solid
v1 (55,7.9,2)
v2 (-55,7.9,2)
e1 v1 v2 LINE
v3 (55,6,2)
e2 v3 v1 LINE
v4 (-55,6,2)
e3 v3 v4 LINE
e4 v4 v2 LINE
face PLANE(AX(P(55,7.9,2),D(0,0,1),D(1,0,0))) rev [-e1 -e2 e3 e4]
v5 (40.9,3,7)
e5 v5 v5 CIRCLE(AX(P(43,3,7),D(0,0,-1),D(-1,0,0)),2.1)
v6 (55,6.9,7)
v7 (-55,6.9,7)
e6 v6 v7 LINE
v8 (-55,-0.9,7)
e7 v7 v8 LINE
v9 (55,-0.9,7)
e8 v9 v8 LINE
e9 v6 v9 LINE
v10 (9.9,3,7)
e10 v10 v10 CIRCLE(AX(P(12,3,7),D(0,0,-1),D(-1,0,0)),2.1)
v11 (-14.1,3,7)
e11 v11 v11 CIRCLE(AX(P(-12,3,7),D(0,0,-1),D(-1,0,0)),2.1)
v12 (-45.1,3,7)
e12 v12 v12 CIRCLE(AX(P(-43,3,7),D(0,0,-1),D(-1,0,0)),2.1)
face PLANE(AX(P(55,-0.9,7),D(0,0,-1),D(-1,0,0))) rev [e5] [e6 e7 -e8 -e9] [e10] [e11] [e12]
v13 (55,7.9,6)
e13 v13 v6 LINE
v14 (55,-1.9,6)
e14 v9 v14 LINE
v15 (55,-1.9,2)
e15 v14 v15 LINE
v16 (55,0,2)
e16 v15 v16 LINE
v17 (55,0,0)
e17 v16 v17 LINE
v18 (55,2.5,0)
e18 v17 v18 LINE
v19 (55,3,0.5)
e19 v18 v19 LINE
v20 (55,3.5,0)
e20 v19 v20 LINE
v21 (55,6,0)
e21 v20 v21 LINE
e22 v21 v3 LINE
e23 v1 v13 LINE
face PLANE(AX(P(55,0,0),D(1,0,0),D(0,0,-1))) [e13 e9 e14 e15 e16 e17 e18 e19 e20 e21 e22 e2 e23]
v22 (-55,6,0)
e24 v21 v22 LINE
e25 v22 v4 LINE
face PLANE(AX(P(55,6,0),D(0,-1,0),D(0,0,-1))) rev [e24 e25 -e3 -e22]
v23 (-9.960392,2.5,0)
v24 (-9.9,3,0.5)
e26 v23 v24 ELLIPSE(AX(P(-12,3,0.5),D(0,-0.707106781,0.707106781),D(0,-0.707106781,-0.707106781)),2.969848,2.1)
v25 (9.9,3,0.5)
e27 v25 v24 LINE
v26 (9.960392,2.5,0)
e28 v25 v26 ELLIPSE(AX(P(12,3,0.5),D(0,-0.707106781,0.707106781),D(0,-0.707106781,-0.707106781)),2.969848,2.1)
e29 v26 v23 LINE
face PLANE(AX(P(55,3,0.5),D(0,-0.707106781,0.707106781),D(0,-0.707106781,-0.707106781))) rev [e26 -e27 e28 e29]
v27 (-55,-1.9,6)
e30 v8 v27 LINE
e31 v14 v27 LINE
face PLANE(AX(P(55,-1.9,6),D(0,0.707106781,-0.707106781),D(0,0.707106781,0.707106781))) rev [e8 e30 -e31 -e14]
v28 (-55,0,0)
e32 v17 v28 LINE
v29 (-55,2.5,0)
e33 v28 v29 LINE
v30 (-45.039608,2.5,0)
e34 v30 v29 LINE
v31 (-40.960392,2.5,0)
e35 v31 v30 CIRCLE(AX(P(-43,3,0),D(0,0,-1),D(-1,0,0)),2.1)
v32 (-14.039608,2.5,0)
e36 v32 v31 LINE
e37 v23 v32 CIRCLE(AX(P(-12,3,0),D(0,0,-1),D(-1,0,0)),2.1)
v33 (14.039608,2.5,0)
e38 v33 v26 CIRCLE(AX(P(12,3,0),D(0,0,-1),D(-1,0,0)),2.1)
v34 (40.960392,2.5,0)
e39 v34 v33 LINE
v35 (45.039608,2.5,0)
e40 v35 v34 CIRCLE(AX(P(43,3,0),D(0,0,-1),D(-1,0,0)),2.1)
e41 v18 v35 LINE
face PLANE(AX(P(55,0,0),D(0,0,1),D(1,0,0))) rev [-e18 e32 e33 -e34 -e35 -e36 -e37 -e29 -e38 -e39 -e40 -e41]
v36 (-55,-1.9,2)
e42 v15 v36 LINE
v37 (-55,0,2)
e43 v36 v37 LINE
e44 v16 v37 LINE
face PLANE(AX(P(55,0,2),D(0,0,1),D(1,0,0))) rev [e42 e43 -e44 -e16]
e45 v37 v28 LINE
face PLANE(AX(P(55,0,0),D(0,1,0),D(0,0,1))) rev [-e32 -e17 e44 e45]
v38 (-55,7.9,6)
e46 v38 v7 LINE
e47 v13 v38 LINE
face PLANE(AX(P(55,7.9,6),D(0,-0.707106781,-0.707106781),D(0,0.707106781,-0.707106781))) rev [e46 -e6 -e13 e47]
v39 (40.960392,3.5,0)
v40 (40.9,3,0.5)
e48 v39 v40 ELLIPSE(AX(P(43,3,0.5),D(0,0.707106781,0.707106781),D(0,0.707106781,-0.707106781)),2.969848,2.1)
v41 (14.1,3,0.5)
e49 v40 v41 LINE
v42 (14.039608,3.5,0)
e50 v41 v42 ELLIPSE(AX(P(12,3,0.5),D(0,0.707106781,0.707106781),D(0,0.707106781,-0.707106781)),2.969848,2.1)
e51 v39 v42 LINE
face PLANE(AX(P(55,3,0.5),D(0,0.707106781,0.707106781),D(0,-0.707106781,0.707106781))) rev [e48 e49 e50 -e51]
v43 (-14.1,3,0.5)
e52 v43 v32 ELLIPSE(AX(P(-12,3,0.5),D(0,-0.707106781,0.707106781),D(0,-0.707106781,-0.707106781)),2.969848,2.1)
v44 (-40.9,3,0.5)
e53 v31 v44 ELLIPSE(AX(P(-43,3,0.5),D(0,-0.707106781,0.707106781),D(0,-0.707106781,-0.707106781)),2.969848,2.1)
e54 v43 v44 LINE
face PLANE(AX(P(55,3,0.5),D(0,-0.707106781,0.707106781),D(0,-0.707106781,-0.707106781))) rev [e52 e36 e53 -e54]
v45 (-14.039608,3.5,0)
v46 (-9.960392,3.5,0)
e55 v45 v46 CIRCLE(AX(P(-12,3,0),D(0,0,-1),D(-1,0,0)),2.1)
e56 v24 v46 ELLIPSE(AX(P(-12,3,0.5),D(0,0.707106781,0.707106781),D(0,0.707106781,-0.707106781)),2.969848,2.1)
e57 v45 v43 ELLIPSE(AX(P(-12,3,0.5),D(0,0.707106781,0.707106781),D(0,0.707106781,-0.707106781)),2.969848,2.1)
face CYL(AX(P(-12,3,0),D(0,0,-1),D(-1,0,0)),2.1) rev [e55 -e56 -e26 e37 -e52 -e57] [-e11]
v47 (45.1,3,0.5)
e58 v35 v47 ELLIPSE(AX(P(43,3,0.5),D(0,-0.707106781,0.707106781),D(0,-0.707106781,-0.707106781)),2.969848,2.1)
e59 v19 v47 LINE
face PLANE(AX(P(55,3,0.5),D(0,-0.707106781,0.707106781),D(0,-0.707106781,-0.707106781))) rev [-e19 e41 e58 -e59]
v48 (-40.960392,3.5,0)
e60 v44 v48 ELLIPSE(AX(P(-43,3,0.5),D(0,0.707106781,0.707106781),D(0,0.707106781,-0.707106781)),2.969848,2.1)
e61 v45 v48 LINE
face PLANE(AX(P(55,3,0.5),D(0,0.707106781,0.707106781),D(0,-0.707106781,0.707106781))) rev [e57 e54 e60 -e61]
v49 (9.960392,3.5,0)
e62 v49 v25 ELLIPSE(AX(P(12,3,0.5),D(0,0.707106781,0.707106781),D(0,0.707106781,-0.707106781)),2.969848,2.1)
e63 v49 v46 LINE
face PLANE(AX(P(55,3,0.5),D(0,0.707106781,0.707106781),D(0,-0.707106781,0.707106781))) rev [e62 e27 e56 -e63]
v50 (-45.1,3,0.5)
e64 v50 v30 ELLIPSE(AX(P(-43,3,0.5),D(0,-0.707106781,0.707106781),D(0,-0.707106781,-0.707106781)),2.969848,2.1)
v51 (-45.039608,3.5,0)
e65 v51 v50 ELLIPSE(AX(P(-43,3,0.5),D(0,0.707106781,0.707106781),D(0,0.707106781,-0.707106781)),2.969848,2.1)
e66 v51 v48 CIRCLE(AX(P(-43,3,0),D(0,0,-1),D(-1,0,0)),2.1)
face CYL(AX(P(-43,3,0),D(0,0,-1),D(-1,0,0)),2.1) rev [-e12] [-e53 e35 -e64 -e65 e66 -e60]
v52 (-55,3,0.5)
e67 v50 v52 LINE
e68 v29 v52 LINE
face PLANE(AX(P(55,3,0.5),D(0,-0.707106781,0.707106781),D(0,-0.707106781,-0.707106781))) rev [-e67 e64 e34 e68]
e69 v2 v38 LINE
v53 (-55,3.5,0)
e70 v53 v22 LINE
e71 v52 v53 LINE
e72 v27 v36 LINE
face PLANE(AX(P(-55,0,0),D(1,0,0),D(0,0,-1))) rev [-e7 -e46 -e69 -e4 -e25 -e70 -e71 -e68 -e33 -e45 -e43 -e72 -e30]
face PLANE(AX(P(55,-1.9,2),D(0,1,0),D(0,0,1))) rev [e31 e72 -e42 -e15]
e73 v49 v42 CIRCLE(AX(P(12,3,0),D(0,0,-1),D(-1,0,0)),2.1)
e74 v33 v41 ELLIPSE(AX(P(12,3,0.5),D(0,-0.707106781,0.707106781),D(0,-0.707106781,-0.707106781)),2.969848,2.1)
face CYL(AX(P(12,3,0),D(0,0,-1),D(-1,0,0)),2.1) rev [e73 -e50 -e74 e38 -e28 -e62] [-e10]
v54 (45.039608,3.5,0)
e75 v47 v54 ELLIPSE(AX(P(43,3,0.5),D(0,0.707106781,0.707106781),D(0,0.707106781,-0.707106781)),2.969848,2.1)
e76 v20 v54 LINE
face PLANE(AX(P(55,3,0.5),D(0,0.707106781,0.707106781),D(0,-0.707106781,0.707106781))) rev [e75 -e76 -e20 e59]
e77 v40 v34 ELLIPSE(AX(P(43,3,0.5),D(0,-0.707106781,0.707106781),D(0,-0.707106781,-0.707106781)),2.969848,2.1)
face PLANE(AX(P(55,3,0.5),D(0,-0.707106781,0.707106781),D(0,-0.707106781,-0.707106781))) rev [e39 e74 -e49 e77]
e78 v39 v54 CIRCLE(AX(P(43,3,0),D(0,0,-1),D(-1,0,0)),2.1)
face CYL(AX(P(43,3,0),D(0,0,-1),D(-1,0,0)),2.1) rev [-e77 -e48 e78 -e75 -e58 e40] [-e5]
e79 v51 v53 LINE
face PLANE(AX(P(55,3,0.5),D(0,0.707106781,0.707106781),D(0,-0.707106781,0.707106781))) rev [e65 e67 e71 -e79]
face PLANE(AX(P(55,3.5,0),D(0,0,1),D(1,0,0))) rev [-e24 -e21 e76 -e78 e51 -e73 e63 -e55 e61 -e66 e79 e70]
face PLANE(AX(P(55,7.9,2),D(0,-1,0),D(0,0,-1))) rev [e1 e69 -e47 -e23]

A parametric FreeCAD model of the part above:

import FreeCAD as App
import Part
import Sketcher
from FreeCAD import Vector
Q = App.Units.Quantity


def add_polygon(sketch, points):
    """Adds a closed chain of lines whose ends are joined by coincident constraints."""
    first, n = sketch.GeometryCount, len(points)
    for a, b in zip(points, points[1:] + points[:1]):
        sketch.addGeometry(Part.LineSegment(App.Vector(*a, 0), App.Vector(*b, 0)), False)
    for i in range(n):
        sketch.addConstraint(Sketcher.Constraint("Coincident", first + i, 2, first + (i + 1) % n, 1))

doc = App.newDocument("Part")
params = doc.addObject("Spreadsheet::Sheet", "Params")
for row, (alias, value) in enumerate([
    ("sketch1_height", "4 mm"),
    ("sketch1_height2", "2 mm"),
    ("sketch1_width", "7.8 mm"),
    ("sketch1_width2", "1.9 mm"),
    ("sketch1_width3", "2.5 mm"),
    ("pad1_length", "110 mm"),
    ("sketch2_diameter", "4.2 mm"),
    ("hole_diameter", "4.2 mm"),
    ("hole_depth", "52.4 mm"),
], start=1):
    params.set(f"A{row}", alias)
    params.set(f"B{row}", "=" + value)
    params.setAlias(f"B{row}", alias)

body = doc.addObject("PartDesign::Body", "Body")

# Sketch on YZ plane
sketch1 = body.newObject("Sketcher::SketchObject", "Sketch")
sketch1.AttachmentSupport = (doc.getObject("YZ_Plane"), [""])
sketch1.MapMode = "FlatFace"
add_polygon(sketch1, [(6.9, 7), (-0.9, 7), (-1.9, 6), (-1.9, 2), (0, 2), (0, 0), (2.5, 0), (3, 0.5), (3.5, 0), (6, 0), (6, 2), (7.9, 2), (7.9, 6)])  # lines 0-12
sketch1.addConstraint(Sketcher.Constraint("Horizontal", 0))
sketch1.addConstraint(Sketcher.Constraint("Vertical", 2))
sketch1.addConstraint(Sketcher.Constraint("Horizontal", 3))
sketch1.addConstraint(Sketcher.Constraint("Vertical", 4))
sketch1.addConstraint(Sketcher.Constraint("Horizontal", 5))
sketch1.addConstraint(Sketcher.Constraint("Horizontal", 8))
sketch1.addConstraint(Sketcher.Constraint("Vertical", 9))
sketch1.addConstraint(Sketcher.Constraint("Horizontal", 10))
sketch1.addConstraint(Sketcher.Constraint("Vertical", 11))
sketch1.addConstraint(Sketcher.Constraint("Coincident", 4, 2, -1, 1))
sketch1.addConstraint(Sketcher.Constraint("PointOnObject", 7, 2, -1))
sketch1.addConstraint(Sketcher.Constraint("Parallel", 1, 6))
sketch1.addConstraint(Sketcher.Constraint("Perpendicular", 6, 7))
sketch1.addConstraint(Sketcher.Constraint("Parallel", 7, 12))
sketch1.addConstraint(Sketcher.Constraint("Horizontal", 3, 2, 9, 2))
sketch1.addConstraint(Sketcher.Constraint("Horizontal", 1, 2, 11, 2))
sketch1.addConstraint(Sketcher.Constraint("Equal", 5, 8))
sketch1.addConstraint(Sketcher.Constraint("Equal", 3, 10))
sketch1.addConstraint(Sketcher.Constraint("Equal", 6, 7))
sketch1.addConstraint(Sketcher.Constraint("DistanceY", 2, 2, 2, 1, Q("4 mm")))
sketch1.addConstraint(Sketcher.Constraint("DistanceY", 4, 2, 4, 1, Q("2 mm")))
sketch1.addConstraint(Sketcher.Constraint("DistanceX", 0, 2, 0, 1, Q("7.8 mm")))
sketch1.addConstraint(Sketcher.Constraint("DistanceX", 3, 1, 3, 2, Q("1.9 mm")))
sketch1.addConstraint(Sketcher.Constraint("DistanceX", 5, 1, 5, 2, Q("2.5 mm")))
sketch1.addConstraint(Sketcher.Constraint("DistanceY", -1, 1, 0, 2, Q("7 mm")))
sketch1.setExpression("Constraints[32]", "Params.sketch1_height")
sketch1.setExpression("Constraints[33]", "Params.sketch1_height2")
sketch1.setExpression("Constraints[34]", "Params.sketch1_width")
sketch1.setExpression("Constraints[35]", "Params.sketch1_width2")
sketch1.setExpression("Constraints[36]", "Params.sketch1_width3")
pad1 = body.newObject("PartDesign::Pad", "Pad")
pad1.Profile = sketch1
pad1.setExpression("Length", "Params.pad1_length")
pad1.Midplane = True

# Sketch on XY plane
sketch2 = body.newObject("Sketcher::SketchObject", "Sketch001")
sketch2.AttachmentSupport = (doc.getObject("XY_Plane"), [""])
sketch2.MapMode = "FlatFace"
sketch2.addGeometry(Part.Circle(Vector(43, 3, 0), Vector(0, 0, 1), 2.1), False)
sketch2.addGeometry(Part.Circle(Vector(12, 3, 0), Vector(0, 0, 1), 2.1), False)
sketch2.addGeometry(Part.Circle(Vector(-12, 3, 0), Vector(0, 0, 1), 2.1), False)
sketch2.addGeometry(Part.Circle(Vector(-43, 3, 0), Vector(0, 0, 1), 2.1), False)
sketch2.addConstraint(Sketcher.Constraint("Equal", 0, 1))
sketch2.addConstraint(Sketcher.Constraint("Equal", 1, 2))
sketch2.addConstraint(Sketcher.Constraint("Equal", 2, 3))
sketch2.addConstraint(Sketcher.Constraint("Symmetric", 1, 3, 2, 3, -2))
sketch2.addConstraint(Sketcher.Constraint("Symmetric", 0, 3, 3, 3, -2))
sketch2.addConstraint(Sketcher.Constraint("Horizontal", 0, 3, 1, 3))
sketch2.addConstraint(Sketcher.Constraint("Diameter", 0, Q("4.2 mm")))
sketch2.addConstraint(Sketcher.Constraint("DistanceX", -1, 1, 0, 3, Q("43 mm")))
sketch2.addConstraint(Sketcher.Constraint("DistanceY", -1, 1, 0, 3, Q("3 mm")))
sketch2.addConstraint(Sketcher.Constraint("DistanceX", -1, 1, 1, 3, Q("12 mm")))
sketch2.setExpression("Constraints[6]", "Params.sketch2_diameter")
doc.recompute()
hole = body.newObject("PartDesign::Hole", "Hole")
hole.Profile = sketch2
hole.ThreadType = "None"
hole.setExpression("Diameter", "Params.hole_diameter")
hole.DepthType = "Dimension"
hole.setExpression("Depth", "Params.hole_depth")
hole.DrillPoint = "Angled"
hole.DrillPointAngle = 118
hole.Reversed = True

doc.recompute()
